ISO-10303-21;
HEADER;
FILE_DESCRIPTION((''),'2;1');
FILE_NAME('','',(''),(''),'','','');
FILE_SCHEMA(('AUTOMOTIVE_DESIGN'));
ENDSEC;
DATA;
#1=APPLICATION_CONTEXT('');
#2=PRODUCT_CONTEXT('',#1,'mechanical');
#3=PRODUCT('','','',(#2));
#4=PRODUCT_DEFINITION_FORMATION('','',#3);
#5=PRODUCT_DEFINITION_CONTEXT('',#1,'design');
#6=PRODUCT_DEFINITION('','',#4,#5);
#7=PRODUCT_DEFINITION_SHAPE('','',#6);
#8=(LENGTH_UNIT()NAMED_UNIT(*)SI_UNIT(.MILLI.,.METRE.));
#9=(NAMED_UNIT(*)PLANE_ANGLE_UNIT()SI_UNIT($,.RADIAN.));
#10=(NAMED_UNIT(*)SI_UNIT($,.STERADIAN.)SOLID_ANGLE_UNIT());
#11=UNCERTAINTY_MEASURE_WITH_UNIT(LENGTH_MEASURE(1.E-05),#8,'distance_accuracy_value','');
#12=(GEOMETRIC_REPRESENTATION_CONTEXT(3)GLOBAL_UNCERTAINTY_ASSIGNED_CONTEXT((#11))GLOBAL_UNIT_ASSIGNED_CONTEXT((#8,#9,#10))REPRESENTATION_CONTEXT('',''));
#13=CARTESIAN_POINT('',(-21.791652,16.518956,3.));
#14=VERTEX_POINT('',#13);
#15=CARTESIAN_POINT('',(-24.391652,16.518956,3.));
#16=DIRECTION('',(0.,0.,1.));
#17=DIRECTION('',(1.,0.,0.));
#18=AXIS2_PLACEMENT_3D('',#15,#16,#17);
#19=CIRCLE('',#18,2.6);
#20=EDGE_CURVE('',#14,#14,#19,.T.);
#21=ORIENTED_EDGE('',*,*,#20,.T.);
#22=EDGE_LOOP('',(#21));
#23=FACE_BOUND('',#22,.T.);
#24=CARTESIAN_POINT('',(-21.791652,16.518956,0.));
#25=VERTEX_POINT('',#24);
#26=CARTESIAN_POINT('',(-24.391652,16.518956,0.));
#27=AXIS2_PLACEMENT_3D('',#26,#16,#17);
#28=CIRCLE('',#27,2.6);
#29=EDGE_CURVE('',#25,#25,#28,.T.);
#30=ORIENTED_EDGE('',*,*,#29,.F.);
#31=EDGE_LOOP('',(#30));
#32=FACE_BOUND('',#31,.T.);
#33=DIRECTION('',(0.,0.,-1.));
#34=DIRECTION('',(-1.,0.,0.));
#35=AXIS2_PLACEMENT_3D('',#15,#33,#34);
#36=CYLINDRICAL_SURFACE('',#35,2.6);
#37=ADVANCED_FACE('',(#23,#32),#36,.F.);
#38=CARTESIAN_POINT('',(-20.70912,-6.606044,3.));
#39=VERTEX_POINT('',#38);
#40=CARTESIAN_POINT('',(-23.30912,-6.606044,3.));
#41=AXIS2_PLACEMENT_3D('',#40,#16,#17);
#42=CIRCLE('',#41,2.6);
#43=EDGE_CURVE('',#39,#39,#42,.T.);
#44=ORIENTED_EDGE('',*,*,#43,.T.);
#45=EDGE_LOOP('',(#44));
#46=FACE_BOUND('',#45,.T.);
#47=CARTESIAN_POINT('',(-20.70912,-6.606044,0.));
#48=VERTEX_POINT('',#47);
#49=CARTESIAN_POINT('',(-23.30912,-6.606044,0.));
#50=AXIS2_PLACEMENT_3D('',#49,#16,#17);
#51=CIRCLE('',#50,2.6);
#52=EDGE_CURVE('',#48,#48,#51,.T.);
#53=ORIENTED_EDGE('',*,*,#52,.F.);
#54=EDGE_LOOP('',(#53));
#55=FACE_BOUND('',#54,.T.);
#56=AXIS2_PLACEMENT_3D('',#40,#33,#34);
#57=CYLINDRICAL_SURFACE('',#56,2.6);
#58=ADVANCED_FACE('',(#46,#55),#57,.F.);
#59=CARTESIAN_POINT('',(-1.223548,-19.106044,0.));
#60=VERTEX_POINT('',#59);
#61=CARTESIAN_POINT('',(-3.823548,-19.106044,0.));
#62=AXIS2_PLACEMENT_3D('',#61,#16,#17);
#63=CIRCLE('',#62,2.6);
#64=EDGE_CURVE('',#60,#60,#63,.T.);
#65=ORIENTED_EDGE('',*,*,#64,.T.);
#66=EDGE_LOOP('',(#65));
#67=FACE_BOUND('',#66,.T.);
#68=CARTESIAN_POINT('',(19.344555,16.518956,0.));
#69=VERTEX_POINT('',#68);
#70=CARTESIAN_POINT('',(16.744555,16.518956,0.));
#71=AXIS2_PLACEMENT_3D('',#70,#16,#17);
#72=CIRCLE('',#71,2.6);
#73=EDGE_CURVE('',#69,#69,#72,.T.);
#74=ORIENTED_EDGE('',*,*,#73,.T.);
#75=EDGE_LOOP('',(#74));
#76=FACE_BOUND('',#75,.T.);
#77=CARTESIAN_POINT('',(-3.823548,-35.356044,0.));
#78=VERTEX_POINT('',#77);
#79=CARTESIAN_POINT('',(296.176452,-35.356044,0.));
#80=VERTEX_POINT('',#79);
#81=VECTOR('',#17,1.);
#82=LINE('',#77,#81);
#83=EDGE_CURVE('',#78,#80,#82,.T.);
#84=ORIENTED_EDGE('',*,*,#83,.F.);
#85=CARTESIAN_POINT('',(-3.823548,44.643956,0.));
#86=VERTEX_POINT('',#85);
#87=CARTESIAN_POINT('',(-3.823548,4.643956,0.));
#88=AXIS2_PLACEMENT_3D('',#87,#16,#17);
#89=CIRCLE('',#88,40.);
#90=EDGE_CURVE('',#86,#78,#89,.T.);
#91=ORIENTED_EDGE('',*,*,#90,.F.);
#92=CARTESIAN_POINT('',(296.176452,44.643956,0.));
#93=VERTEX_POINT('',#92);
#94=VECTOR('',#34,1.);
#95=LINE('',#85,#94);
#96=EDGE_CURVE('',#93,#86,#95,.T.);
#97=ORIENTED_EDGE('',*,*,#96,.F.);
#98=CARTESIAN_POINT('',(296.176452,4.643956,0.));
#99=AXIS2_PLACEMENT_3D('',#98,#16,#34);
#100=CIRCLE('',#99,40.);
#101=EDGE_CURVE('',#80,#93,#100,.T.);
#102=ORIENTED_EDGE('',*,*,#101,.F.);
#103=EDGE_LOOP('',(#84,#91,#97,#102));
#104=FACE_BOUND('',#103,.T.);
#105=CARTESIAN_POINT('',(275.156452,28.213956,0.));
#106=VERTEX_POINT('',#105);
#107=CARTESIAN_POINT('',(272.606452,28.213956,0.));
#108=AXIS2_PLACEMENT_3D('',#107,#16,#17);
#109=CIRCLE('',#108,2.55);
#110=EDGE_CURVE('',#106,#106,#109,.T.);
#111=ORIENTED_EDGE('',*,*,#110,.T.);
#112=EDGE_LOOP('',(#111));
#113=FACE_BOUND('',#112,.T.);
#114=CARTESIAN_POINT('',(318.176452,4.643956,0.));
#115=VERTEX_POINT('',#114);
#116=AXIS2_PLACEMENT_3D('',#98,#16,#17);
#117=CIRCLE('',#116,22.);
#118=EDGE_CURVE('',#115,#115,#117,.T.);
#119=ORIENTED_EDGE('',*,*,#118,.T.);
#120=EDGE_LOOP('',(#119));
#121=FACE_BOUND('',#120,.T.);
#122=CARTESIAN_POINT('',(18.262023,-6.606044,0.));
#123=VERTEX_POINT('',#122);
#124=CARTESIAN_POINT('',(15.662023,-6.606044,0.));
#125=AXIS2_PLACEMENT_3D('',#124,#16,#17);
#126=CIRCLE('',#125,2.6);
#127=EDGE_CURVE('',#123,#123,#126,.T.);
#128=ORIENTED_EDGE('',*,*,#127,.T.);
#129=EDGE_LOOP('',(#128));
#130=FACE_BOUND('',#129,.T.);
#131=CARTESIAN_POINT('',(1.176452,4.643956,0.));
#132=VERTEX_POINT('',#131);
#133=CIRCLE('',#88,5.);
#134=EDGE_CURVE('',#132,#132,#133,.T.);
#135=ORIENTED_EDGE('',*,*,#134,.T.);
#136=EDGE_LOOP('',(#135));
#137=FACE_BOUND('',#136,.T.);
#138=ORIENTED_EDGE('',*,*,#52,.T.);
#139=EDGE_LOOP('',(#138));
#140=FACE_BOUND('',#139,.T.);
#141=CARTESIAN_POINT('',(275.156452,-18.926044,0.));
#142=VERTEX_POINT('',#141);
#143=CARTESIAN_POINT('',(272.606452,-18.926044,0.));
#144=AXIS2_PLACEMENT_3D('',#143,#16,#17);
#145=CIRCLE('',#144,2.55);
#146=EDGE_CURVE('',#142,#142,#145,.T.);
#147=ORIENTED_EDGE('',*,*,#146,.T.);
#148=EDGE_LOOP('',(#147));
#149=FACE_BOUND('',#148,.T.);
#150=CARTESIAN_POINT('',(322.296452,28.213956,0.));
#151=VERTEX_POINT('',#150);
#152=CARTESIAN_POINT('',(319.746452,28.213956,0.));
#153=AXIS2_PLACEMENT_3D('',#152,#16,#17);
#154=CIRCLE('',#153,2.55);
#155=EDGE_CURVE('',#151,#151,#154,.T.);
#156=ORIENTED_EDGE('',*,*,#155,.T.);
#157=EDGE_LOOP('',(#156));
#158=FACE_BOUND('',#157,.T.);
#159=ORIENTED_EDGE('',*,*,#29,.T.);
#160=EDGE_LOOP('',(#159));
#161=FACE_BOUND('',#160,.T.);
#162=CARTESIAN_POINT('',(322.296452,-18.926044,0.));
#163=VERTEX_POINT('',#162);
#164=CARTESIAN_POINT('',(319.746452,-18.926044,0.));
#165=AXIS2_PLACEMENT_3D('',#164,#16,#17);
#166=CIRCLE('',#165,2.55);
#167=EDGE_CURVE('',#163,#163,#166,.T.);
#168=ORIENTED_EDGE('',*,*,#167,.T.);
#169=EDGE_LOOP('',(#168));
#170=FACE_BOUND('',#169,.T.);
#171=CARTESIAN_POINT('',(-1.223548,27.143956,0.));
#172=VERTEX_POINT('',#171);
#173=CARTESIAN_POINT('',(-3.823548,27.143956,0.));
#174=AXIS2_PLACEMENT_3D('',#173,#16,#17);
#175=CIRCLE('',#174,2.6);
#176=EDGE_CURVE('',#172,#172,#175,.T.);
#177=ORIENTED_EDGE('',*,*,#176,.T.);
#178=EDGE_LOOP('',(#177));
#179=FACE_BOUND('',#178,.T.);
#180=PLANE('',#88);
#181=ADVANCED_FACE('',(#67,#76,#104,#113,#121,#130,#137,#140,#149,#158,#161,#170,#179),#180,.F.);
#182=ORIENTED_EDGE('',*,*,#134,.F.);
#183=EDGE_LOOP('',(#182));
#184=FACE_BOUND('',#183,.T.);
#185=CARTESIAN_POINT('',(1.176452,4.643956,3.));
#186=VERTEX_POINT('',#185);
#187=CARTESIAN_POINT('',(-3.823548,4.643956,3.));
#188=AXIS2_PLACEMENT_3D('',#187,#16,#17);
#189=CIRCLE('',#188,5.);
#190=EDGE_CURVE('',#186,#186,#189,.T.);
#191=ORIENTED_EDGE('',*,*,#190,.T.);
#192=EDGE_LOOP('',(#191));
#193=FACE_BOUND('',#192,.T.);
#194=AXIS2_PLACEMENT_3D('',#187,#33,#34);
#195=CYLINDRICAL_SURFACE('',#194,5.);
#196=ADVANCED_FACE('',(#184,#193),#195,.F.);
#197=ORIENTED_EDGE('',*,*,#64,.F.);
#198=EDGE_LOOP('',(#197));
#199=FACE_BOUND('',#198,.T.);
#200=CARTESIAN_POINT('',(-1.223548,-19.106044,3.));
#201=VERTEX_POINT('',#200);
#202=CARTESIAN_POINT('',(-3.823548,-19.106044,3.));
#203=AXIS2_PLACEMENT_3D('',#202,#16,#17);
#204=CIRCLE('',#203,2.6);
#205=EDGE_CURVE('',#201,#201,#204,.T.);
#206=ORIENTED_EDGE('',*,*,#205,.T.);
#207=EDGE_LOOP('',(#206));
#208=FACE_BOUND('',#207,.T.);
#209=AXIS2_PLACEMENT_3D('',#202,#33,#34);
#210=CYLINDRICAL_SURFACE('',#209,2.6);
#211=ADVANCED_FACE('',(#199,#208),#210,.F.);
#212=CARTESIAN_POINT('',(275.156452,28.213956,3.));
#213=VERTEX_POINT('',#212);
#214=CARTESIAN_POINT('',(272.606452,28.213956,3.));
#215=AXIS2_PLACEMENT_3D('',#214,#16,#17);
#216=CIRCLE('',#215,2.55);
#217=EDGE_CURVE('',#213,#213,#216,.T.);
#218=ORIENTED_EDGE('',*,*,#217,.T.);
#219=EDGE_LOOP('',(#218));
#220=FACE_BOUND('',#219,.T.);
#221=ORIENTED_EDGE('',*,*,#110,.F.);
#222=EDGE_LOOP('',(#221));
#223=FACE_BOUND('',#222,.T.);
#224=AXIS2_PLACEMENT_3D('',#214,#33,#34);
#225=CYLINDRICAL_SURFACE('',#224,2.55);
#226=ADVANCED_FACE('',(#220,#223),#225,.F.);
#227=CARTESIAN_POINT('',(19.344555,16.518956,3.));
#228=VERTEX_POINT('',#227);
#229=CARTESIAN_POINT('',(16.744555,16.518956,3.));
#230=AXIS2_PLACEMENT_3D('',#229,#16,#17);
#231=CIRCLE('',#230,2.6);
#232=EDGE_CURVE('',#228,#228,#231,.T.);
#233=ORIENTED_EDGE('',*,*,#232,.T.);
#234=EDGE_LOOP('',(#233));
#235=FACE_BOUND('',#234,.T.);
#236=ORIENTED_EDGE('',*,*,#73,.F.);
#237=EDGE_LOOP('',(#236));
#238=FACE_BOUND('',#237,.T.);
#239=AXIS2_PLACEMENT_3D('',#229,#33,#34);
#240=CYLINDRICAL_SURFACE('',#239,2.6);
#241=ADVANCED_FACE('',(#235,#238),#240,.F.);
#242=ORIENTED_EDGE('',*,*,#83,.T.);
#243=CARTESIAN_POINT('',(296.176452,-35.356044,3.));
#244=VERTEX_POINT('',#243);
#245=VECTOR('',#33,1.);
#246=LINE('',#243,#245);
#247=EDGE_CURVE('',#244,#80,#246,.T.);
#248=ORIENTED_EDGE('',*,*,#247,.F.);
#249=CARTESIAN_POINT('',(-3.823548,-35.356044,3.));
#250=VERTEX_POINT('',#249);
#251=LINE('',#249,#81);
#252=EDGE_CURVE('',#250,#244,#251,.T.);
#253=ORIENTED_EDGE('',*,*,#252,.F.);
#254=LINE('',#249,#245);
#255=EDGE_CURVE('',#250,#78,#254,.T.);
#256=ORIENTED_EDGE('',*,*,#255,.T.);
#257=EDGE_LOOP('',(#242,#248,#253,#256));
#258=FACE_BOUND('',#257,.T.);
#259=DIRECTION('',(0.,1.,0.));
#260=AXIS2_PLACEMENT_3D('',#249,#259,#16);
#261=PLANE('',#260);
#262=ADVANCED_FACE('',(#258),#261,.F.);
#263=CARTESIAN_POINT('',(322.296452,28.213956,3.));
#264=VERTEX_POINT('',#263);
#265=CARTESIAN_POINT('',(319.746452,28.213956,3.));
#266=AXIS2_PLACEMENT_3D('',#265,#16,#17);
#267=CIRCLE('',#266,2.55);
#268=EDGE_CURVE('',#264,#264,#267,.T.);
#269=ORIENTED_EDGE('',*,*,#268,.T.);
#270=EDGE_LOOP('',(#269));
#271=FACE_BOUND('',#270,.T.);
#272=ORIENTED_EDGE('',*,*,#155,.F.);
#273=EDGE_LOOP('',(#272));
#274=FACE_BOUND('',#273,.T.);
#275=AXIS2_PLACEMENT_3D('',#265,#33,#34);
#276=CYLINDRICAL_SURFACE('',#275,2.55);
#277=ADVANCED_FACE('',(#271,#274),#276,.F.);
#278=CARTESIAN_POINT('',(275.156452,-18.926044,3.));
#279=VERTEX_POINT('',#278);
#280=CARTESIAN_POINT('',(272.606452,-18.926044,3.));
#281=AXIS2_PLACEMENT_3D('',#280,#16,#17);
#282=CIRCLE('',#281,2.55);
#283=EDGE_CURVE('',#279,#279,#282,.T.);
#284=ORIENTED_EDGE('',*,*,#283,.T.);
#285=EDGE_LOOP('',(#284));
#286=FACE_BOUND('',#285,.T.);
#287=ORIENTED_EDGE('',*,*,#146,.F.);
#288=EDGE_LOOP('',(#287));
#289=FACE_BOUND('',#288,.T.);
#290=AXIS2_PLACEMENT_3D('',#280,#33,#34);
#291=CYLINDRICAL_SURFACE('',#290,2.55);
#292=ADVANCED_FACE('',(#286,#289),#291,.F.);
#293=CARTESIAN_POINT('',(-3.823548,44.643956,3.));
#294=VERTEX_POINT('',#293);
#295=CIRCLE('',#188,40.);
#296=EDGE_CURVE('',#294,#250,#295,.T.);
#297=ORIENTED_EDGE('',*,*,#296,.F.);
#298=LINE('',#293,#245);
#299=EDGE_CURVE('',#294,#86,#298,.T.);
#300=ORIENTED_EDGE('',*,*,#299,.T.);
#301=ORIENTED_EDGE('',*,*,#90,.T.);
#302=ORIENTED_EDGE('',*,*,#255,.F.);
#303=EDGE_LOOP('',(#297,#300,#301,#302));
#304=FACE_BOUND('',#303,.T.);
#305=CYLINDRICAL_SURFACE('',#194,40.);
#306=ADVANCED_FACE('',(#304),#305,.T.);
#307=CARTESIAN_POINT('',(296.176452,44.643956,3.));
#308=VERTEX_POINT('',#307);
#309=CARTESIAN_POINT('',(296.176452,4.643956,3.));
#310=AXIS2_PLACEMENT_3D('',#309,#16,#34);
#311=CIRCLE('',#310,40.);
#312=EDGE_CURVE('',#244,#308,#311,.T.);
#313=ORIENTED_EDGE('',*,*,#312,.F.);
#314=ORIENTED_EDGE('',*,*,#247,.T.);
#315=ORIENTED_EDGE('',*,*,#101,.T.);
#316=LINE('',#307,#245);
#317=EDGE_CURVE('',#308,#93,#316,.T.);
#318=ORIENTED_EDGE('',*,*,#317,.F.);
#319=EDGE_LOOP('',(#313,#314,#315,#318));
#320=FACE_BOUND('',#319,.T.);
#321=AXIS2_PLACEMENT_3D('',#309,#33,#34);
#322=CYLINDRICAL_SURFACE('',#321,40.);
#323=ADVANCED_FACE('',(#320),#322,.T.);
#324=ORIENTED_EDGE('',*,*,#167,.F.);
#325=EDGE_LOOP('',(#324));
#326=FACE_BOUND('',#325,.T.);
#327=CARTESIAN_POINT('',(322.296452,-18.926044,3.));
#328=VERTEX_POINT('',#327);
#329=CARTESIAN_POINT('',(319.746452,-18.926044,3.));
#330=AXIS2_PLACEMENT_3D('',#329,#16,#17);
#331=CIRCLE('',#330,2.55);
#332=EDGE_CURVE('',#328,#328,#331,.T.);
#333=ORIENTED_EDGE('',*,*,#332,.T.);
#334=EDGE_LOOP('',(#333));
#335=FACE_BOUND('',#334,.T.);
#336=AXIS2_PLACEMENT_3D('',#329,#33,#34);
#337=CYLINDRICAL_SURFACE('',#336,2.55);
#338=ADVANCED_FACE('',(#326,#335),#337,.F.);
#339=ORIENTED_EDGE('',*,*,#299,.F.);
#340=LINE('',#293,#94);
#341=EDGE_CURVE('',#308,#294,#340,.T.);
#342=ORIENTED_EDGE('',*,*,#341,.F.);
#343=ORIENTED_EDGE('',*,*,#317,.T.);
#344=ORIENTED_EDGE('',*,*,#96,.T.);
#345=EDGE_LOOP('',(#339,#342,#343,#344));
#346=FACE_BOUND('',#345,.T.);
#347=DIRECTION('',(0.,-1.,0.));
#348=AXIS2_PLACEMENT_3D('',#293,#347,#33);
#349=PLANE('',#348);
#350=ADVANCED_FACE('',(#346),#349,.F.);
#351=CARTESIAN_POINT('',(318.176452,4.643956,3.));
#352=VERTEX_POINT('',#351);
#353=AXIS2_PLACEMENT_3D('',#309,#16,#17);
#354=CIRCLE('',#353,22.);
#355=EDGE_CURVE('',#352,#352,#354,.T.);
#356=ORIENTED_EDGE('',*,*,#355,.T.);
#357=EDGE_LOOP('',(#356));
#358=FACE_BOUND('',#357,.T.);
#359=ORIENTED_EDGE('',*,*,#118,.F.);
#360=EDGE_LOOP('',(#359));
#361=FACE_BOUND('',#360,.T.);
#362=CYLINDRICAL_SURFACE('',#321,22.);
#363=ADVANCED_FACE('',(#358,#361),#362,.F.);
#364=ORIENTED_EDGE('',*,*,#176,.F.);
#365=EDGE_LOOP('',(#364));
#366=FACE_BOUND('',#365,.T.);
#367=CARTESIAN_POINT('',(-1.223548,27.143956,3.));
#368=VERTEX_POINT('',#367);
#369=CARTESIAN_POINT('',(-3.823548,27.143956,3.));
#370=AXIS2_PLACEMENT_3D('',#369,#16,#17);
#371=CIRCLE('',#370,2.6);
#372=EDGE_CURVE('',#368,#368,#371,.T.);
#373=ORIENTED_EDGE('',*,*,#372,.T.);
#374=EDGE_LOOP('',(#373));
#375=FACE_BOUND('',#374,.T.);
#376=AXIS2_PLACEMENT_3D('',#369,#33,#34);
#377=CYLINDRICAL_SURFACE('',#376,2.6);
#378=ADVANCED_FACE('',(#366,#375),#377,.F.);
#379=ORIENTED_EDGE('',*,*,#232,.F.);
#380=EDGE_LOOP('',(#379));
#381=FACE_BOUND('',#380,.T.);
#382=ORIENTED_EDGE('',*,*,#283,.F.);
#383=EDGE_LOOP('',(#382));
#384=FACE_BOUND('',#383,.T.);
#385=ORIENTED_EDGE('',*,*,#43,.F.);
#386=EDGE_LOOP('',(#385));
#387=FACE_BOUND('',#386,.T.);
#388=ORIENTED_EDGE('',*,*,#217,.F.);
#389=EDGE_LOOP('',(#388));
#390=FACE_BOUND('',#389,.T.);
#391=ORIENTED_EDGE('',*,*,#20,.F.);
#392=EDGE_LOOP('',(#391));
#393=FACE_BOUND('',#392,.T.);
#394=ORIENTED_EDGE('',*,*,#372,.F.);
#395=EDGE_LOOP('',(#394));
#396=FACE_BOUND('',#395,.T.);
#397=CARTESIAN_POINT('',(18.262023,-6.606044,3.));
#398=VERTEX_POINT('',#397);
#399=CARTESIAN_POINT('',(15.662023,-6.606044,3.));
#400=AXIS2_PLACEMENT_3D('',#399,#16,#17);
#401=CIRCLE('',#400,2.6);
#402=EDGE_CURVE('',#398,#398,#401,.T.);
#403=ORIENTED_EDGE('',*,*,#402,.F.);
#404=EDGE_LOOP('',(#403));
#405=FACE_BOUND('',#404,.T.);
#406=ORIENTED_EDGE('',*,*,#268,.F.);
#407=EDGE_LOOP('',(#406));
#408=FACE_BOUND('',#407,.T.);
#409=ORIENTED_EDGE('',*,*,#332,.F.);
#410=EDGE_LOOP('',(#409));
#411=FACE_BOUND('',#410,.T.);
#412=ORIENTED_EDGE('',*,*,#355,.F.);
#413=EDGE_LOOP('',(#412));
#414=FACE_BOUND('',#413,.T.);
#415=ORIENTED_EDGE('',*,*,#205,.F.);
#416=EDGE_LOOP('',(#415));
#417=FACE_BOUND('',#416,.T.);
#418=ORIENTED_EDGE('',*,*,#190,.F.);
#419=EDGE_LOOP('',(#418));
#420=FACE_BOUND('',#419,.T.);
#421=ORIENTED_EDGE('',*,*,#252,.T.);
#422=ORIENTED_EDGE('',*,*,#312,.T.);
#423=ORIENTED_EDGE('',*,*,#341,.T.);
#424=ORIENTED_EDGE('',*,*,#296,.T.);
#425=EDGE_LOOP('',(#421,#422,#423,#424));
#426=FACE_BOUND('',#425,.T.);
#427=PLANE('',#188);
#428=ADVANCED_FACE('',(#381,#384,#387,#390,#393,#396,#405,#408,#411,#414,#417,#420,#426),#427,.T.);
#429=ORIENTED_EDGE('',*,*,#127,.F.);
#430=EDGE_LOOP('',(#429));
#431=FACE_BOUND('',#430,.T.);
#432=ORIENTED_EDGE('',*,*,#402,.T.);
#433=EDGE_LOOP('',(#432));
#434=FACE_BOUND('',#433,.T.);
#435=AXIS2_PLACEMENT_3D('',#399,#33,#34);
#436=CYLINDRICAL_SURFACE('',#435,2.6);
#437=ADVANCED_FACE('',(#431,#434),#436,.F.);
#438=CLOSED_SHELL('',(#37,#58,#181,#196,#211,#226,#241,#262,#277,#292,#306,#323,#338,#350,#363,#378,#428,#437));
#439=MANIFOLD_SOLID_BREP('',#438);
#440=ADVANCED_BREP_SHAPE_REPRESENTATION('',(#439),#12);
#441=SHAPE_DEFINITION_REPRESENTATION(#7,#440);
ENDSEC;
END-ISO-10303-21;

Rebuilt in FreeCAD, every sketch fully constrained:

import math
import FreeCAD as App
import Part
import Sketcher

V = App.Vector

doc = App.newDocument("Part")
body = doc.addObject("PartDesign::Body", "Body")

# Sketch on XY plane
sketch1 = body.newObject("Sketcher::SketchObject", "Sketch")
sketch1.AttachmentSupport = (doc.getObject("XY_Plane"), [""])
sketch1.MapMode = "FlatFace"
sketch1.addGeometry([
    Part.LineSegment(V(296.2, 44.6, 0), V(-3.8, 44.6, 0)),  # 0
    Part.ArcOfCircle(Part.Circle(V(-3.8, 4.6, 0), V(0, 0, 1), 40), math.radians(90), math.radians(270)),  # 1
    Part.LineSegment(V(-3.8, -35.4, 0), V(296.2, -35.4, 0)),  # 2
    Part.ArcOfCircle(Part.Circle(V(296.2, 4.6, 0), V(0, 0, 1), 40), math.radians(-90), math.radians(90)),  # 3
    Part.Circle(V(319.7, -18.9, 0), V(0, 0, 1), 2.5),  # 4
    Part.Circle(V(272.6, -18.9, 0), V(0, 0, 1), 2.5),  # 5
    Part.Circle(V(-3.8, -19.1, 0), V(0, 0, 1), 2.6),  # 6
    Part.Circle(V(15.7, -6.6, 0), V(0, 0, 1), 2.6),  # 7
    Part.Circle(V(-23.3, -6.6, 0), V(0, 0, 1), 2.6),  # 8
    Part.Circle(V(296.2, 4.6, 0), V(0, 0, 1), 22),  # 9
    Part.Circle(V(319.7, 28.2, 0), V(0, 0, 1), 2.5),  # 10
    Part.Circle(V(272.6, 28.2, 0), V(0, 0, 1), 2.5),  # 11
    Part.Circle(V(-3.8, 4.6, 0), V(0, 0, 1), 5),  # 12
    Part.Circle(V(16.7, 16.5, 0), V(0, 0, 1), 2.6),  # 13
    Part.Circle(V(-24.4, 16.5, 0), V(0, 0, 1), 2.6),  # 14
    Part.Circle(V(-3.8, 27.1, 0), V(0, 0, 1), 2.6),  # 15
], False)
sketch1.addConstraint([
    Sketcher.Constraint("Tangent", 0, 2, 1, 1),
    Sketcher.Constraint("Tangent", 1, 2, 2, 1),
    Sketcher.Constraint("Tangent", 2, 2, 3, 1),
    Sketcher.Constraint("Tangent", 3, 2, 0, 1),
    Sketcher.Constraint("Horizontal", 0),
    Sketcher.Constraint("Horizontal", 2),
    Sketcher.Constraint("Coincident", 9, 3, 3, 3),
    Sketcher.Constraint("Coincident", 12, 3, 1, 3),
    Sketcher.Constraint("Equal", 4, 5),
    Sketcher.Constraint("Equal", 6, 7),
    Sketcher.Constraint("Equal", 7, 8),
    Sketcher.Constraint("Equal", 5, 10),
    Sketcher.Constraint("Equal", 10, 11),
    Sketcher.Constraint("Equal", 8, 13),
    Sketcher.Constraint("Equal", 13, 14),
    Sketcher.Constraint("Equal", 14, 15),
    Sketcher.Constraint("Horizontal", 4, 3, 5, 3),
    Sketcher.Constraint("Horizontal", 7, 3, 8, 3),
    Sketcher.Constraint("Horizontal", 10, 3, 11, 3),
    Sketcher.Constraint("Horizontal", 13, 3, 14, 3),
    Sketcher.Constraint("Vertical", 1, 3, 6, 3),
    Sketcher.Constraint("Vertical", 4, 3, 10, 3),
    Sketcher.Constraint("Vertical", 5, 3, 11, 3),
    Sketcher.Constraint("Vertical", 12, 3, 15, 3),
    Sketcher.Constraint("Diameter", 9, 44.0),
    Sketcher.Constraint("Diameter", 12, 10.0),
    Sketcher.Constraint("Radius", 1, 40.0),
    Sketcher.Constraint("Diameter", 4, 5.1),
    Sketcher.Constraint("Diameter", 6, 5.2),
    Sketcher.Constraint("DistanceX", 0, 2, 0, 1, 300.0),
    Sketcher.Constraint("DistanceY", 6, 3, 7, 3, 12.5),
    Sketcher.Constraint("DistanceY", 1, 3, 15, 3, 22.5),
    Sketcher.Constraint("DistanceX", 3, 3, 4, 3, 23.57),
    Sketcher.Constraint("DistanceY", 4, 3, 3, 3, 23.57),
    Sketcher.Constraint("DistanceX", 5, 3, 3, 3, 23.57),
    Sketcher.Constraint("DistanceY", 6, 3, 1, 3, 23.75),
    Sketcher.Constraint("DistanceY", 3, 3, 10, 3, 23.57),
    Sketcher.Constraint("DistanceY", 7, 3, 13, 3, 23.125),
    Sketcher.Constraint("DistanceX", 1, 3, -1, 1, 3.823548),
    Sketcher.Constraint("DistanceX", 8, 3, -1, 1, 23.30912),
    Sketcher.Constraint("DistanceX", 14, 3, -1, 1, 24.391652),
    Sketcher.Constraint("DistanceX", 1, 3, 7, 3, 19.485572),
    Sketcher.Constraint("DistanceX", 7, 3, 13, 3, 1.082532),
    Sketcher.Constraint("DistanceY", -1, 1, 1, 3, 4.643956),
])
pad1 = body.newObject("PartDesign::Pad", "Pad")
pad1.Profile = sketch1
pad1.Length = 3

doc.recompute()
